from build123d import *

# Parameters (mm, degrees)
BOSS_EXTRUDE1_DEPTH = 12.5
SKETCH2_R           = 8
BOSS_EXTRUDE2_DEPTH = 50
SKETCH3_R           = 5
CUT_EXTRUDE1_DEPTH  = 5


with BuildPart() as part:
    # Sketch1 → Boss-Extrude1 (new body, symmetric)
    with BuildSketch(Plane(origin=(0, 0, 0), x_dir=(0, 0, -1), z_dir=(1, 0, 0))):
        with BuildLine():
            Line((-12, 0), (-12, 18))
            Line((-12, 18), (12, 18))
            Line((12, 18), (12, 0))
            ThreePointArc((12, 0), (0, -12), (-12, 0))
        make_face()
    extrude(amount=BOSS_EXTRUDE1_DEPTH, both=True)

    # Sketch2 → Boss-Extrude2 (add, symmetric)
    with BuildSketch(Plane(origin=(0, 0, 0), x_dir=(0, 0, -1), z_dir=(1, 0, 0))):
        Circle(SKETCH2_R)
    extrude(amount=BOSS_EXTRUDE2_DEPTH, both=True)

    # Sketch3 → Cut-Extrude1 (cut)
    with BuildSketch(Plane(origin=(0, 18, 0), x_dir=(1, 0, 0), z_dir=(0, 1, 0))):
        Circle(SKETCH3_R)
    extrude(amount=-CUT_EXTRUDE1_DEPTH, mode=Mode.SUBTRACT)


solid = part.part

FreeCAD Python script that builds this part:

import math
import FreeCAD as App
import Part
import Sketcher

doc = App.newDocument("Part")
body = doc.addObject("PartDesign::Body", "Body")

# Sketch on YZ plane
sketch1 = body.newObject("Sketcher::SketchObject", "Sketch")
sketch1.AttachmentSupport = (doc.getObject("YZ_Plane"), [""])
sketch1.MapMode = "FlatFace"
sketch1.addGeometry([
    Part.LineSegment(App.Vector(18, 12, 0), App.Vector(0, 12, 0)),
    Part.ArcOfCircle(Part.Circle(App.Vector(0, 0, 0), App.Vector(0, 0, 1), 12), math.radians(90), math.radians(270)),
    Part.LineSegment(App.Vector(0, -12, 0), App.Vector(18, -12, 0)),
    Part.LineSegment(App.Vector(18, -12, 0), App.Vector(18, 12, 0)),
], False)
sketch1.addConstraint([
    Sketcher.Constraint("Tangent", 0, 2, 1, 1),
    Sketcher.Constraint("Tangent", 1, 2, 2, 1),
    Sketcher.Constraint("Coincident", 2, 2, 3, 1),
    Sketcher.Constraint("Coincident", 3, 2, 0, 1),
    Sketcher.Constraint("Horizontal", 0),
    Sketcher.Constraint("Horizontal", 2),
    Sketcher.Constraint("Vertical", 3),
    Sketcher.Constraint("Coincident", 1, 3, -1, 1),
    Sketcher.Constraint("Radius", 1, 12.0),
    Sketcher.Constraint("DistanceX", 0, 2, 0, 1, 18.0),
])
pad1 = body.newObject("PartDesign::Pad", "Pad")
pad1.Profile = sketch1
pad1.Length = 25
pad1.Midplane = True

# Sketch on YZ plane
sketch2 = body.newObject("Sketcher::SketchObject", "Sketch001")
sketch2.AttachmentSupport = (doc.getObject("YZ_Plane"), [""])
sketch2.MapMode = "FlatFace"
sketch2.addGeometry(Part.Circle(App.Vector(0, 0, 0), App.Vector(0, 0, 1), 8), False)
sketch2.addConstraint([
    Sketcher.Constraint("Coincident", 0, 3, -1, 1),
    Sketcher.Constraint("Diameter", 0, 16.0),
])
pad2 = body.newObject("PartDesign::Pad", "Pad001")
pad2.Profile = sketch2
pad2.Length = 100
pad2.Midplane = True

# Sketch on XZ plane
sketch3 = body.newObject("Sketcher::SketchObject", "Sketch002")
sketch3.AttachmentSupport = (doc.getObject("XZ_Plane"), [""])
sketch3.MapMode = "FlatFace"
sketch3.AttachmentOffset = App.Placement(App.Vector(0, 0, -18), App.Rotation())
sketch3.addGeometry(Part.Circle(App.Vector(0, 0, 0), App.Vector(0, 0, 1), 5), False)
sketch3.addConstraint([
    Sketcher.Constraint("Coincident", 0, 3, -1, 1),
    Sketcher.Constraint("Diameter", 0, 10.0),
])
pocket1 = body.newObject("PartDesign::Pocket", "Pocket")
pocket1.Profile = sketch3
pocket1.Length = 5
pocket1.Reversed = True

doc.recompute()
